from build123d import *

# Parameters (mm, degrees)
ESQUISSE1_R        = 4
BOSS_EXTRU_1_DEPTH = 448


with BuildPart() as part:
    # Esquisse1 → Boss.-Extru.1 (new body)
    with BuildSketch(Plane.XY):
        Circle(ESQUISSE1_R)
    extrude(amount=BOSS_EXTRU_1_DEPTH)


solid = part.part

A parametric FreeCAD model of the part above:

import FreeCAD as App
import Part
import Sketcher

V = App.Vector
Q = App.Units.Quantity

doc = App.newDocument("Part")
body = doc.addObject("PartDesign::Body", "Body")

# Sketch on XY plane
sketch1 = body.newObject("Sketcher::SketchObject", "Sketch")
sketch1.AttachmentSupport = (doc.getObject("XY_Plane"), [""])
sketch1.MapMode = "FlatFace"
sketch1.addGeometry(Part.Circle(V(0, 0, 0), V(0, 0, 1), 4), False)
sketch1.addConstraint(Sketcher.Constraint("Coincident", 0, 3, -1, 1))
sketch1.addConstraint(Sketcher.Constraint("Diameter", 0, Q("8 mm")))
pad1 = body.newObject("PartDesign::Pad", "Pad")
pad1.Profile = sketch1
pad1.Length = 448

doc.recompute()
